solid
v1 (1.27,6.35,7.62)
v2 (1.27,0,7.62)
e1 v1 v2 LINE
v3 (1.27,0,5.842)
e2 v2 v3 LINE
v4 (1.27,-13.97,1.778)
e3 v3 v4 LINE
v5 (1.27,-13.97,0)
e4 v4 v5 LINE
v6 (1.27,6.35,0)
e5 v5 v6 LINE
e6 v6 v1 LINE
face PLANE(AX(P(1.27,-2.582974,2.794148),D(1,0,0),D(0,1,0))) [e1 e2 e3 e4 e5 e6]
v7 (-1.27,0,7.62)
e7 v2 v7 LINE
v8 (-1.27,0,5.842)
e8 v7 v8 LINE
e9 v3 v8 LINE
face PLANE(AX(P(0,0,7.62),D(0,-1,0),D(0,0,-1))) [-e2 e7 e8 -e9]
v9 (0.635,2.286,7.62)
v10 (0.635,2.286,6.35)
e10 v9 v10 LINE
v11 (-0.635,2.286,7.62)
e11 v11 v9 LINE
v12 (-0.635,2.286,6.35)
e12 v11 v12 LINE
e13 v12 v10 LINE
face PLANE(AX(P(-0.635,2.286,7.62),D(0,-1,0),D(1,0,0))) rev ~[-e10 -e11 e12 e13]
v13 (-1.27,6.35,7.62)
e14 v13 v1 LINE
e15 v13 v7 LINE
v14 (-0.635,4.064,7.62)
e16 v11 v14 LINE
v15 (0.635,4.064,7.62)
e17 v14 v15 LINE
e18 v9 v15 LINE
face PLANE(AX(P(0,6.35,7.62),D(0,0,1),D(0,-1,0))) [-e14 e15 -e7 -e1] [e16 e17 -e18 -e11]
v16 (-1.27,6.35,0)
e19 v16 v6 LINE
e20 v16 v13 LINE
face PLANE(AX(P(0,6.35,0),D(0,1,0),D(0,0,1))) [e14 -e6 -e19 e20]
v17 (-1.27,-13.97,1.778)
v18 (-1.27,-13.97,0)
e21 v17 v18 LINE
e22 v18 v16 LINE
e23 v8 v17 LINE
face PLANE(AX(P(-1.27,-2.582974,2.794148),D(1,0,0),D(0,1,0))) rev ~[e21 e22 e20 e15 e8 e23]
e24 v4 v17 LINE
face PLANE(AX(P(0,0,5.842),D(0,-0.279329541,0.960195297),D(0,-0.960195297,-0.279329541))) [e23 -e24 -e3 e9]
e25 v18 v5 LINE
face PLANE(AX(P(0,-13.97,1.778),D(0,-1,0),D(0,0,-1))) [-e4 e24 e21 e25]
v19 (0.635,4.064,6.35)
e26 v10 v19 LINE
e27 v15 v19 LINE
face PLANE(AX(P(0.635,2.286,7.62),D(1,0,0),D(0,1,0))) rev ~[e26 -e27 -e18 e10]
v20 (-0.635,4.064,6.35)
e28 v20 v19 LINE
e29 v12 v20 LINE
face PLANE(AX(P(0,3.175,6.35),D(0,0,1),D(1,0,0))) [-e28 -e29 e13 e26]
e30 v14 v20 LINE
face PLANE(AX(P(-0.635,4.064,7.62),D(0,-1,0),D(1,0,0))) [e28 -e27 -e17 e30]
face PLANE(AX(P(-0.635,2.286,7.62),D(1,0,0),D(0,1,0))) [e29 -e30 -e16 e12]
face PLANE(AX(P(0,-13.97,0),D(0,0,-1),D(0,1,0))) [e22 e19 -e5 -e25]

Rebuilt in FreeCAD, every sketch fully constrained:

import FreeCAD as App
import Part
import Sketcher

V = App.Vector
Q = App.Units.Quantity

doc = App.newDocument("Part")
params = doc.addObject("Spreadsheet::Sheet", "Params")
for row, (alias, value) in enumerate([
    ("sketch1_width", "0.8 in"),
    ("sketch1_height", "0.3 in"),
    ("sketch1_width2", "0.25 in"),
    ("sketch1_height2", "0.07 in"),
    ("pad1_length", "0.1 in"),
    ("sketch2_width", "0.05 in"),
    ("sketch2_height", "0.07 in"),
    ("pocket1_length", "0.05 in"),
], start=1):
    params.set(f"A{row}", alias)
    params.set(f"B{row}", "=" + value)
    params.setAlias(f"B{row}", alias)

body = doc.addObject("PartDesign::Body", "Body")

# Sketch on YZ plane
sketch1 = body.newObject("Sketcher::SketchObject", "Sketch")
sketch1.AttachmentSupport = (doc.getObject("YZ_Plane"), [""])
sketch1.MapMode = "FlatFace"
sketch1.addGeometry(Part.LineSegment(V(-13.97, 1.778, 0), V(-13.97, 0, 0)), False)
sketch1.addGeometry(Part.LineSegment(V(-13.97, 0, 0), V(6.35, 0, 0)), False)
sketch1.addGeometry(Part.LineSegment(V(6.35, 0, 0), V(6.35, 7.62, 0)), False)
sketch1.addGeometry(Part.LineSegment(V(6.35, 7.62, 0), V(0, 7.62, 0)), False)
sketch1.addGeometry(Part.LineSegment(V(0, 7.62, 0), V(0, 5.842, 0)), False)
sketch1.addGeometry(Part.LineSegment(V(0, 5.842, 0), V(-13.97, 1.778, 0)), False)
sketch1.addConstraint(Sketcher.Constraint("Coincident", 0, 2, 1, 1))
sketch1.addConstraint(Sketcher.Constraint("Coincident", 1, 2, 2, 1))
sketch1.addConstraint(Sketcher.Constraint("Coincident", 2, 2, 3, 1))
sketch1.addConstraint(Sketcher.Constraint("Coincident", 3, 2, 4, 1))
sketch1.addConstraint(Sketcher.Constraint("Coincident", 4, 2, 5, 1))
sketch1.addConstraint(Sketcher.Constraint("Coincident", 5, 2, 0, 1))
sketch1.addConstraint(Sketcher.Constraint("Vertical", 0))
sketch1.addConstraint(Sketcher.Constraint("Horizontal", 1))
sketch1.addConstraint(Sketcher.Constraint("Vertical", 2))
sketch1.addConstraint(Sketcher.Constraint("Horizontal", 3))
sketch1.addConstraint(Sketcher.Constraint("Vertical", 4))
sketch1.addConstraint(Sketcher.Constraint("PointOnObject", 0, 2, -1))
sketch1.addConstraint(Sketcher.Constraint("PointOnObject", 3, 2, -2))
sketch1.addConstraint(Sketcher.Constraint("Equal", 0, 4))
sketch1.addConstraint(Sketcher.Constraint("DistanceX", 1, 1, 1, 2, Q("0.8 in")))
sketch1.addConstraint(Sketcher.Constraint("DistanceY", 2, 1, 2, 2, Q("0.3 in")))
sketch1.addConstraint(Sketcher.Constraint("DistanceX", 3, 2, 3, 1, Q("0.25 in")))
sketch1.addConstraint(Sketcher.Constraint("DistanceY", 0, 2, 0, 1, Q("0.07 in")))
sketch1.setExpression("Constraints[14]", "Params.sketch1_width")
sketch1.setExpression("Constraints[15]", "Params.sketch1_height")
sketch1.setExpression("Constraints[16]", "Params.sketch1_width2")
sketch1.setExpression("Constraints[17]", "Params.sketch1_height2")
pad1 = body.newObject("PartDesign::Pad", "Pad")
pad1.Profile = sketch1
pad1.setExpression("Length", "Params.pad1_length")
pad1.Midplane = True

# Sketch on XY plane
sketch2 = body.newObject("Sketcher::SketchObject", "Sketch001")
sketch2.AttachmentSupport = (doc.getObject("XY_Plane"), [""])
sketch2.MapMode = "FlatFace"
sketch2.AttachmentOffset = App.Placement(V(0, 0, 0.3 * 25.4), App.Rotation())
sketch2.addGeometry(Part.LineSegment(V(-0.635, 4.064, 0), V(-0.635, 2.286, 0)), False)
sketch2.addGeometry(Part.LineSegment(V(-0.635, 2.286, 0), V(0.635, 2.286, 0)), False)
sketch2.addGeometry(Part.LineSegment(V(0.635, 2.286, 0), V(0.635, 4.064, 0)), False)
sketch2.addGeometry(Part.LineSegment(V(0.635, 4.064, 0), V(-0.635, 4.064, 0)), False)
sketch2.addConstraint(Sketcher.Constraint("Coincident", 0, 2, 1, 1))
sketch2.addConstraint(Sketcher.Constraint("Coincident", 1, 2, 2, 1))
sketch2.addConstraint(Sketcher.Constraint("Coincident", 2, 2, 3, 1))
sketch2.addConstraint(Sketcher.Constraint("Coincident", 3, 2, 0, 1))
sketch2.addConstraint(Sketcher.Constraint("Vertical", 0))
sketch2.addConstraint(Sketcher.Constraint("Horizontal", 1))
sketch2.addConstraint(Sketcher.Constraint("Vertical", 2))
sketch2.addConstraint(Sketcher.Constraint("Horizontal", 3))
sketch2.addConstraint(Sketcher.Constraint("DistanceX", 1, 1, 1, 2, Q("0.05 in")))
sketch2.addConstraint(Sketcher.Constraint("DistanceY", 0, 2, 0, 1, Q("0.07 in")))
sketch2.addConstraint(Sketcher.Constraint("DistanceY", -1, 1, 0, 2, Q("0.09 in")))
sketch2.addConstraint(Sketcher.Constraint("DistanceX", 0, 2, -1, 1, Q("0.025 in")))
sketch2.setExpression("Constraints[8]", "Params.sketch2_width")
sketch2.setExpression("Constraints[9]", "Params.sketch2_height")
pocket1 = body.newObject("PartDesign::Pocket", "Pocket")
pocket1.Profile = sketch2
pocket1.setExpression("Length", "Params.pocket1_length")

doc.recompute()
